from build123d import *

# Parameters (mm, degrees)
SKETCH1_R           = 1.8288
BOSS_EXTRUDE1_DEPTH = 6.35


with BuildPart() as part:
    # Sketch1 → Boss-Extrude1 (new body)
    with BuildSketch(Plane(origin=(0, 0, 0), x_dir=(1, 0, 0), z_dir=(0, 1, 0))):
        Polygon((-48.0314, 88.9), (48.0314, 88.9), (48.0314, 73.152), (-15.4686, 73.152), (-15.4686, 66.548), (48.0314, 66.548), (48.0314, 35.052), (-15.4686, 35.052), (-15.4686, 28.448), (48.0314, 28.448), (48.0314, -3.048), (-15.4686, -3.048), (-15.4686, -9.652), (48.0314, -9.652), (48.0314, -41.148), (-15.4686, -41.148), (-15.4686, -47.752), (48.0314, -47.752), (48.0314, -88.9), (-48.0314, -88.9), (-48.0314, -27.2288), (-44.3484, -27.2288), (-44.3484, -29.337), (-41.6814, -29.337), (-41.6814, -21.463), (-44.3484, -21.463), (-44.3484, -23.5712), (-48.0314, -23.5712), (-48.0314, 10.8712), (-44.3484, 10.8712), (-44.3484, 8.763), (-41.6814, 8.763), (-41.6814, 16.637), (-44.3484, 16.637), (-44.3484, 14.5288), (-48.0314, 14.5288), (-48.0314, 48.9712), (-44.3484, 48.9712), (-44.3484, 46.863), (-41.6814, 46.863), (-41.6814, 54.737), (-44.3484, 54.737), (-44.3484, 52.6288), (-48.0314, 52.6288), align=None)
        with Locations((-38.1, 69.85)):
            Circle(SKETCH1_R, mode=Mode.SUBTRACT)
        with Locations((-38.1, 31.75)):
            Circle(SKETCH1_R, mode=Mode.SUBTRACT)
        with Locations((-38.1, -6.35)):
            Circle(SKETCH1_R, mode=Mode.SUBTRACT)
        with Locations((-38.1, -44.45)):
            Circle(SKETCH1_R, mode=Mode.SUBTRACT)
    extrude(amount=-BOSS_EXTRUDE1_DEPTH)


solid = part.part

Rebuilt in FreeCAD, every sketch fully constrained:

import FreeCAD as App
import Part
import Sketcher
Q = App.Units.Quantity

doc = App.newDocument("Part")
body = doc.addObject("PartDesign::Body", "Body")

# Sketch on XZ plane
sketch1 = body.newObject("Sketcher::SketchObject", "Sketch")
sketch1.AttachmentSupport = (doc.getObject("XZ_Plane"), [""])
sketch1.MapMode = "FlatFace"
sketch1.addGeometry(Part.LineSegment(App.Vector(48, -88.9, 0), App.Vector(-48, -88.9, 0)), False)
sketch1.addGeometry(Part.LineSegment(App.Vector(-48, -88.9, 0), App.Vector(-48, -52.6, 0)), False)
sketch1.addGeometry(Part.LineSegment(App.Vector(-48, -52.6, 0), App.Vector(-44.3, -52.6, 0)), False)
sketch1.addGeometry(Part.LineSegment(App.Vector(-44.3, -52.6, 0), App.Vector(-44.3, -54.7, 0)), False)
sketch1.addGeometry(Part.LineSegment(App.Vector(-44.3, -54.7, 0), App.Vector(-41.7, -54.7, 0)), False)
sketch1.addGeometry(Part.LineSegment(App.Vector(-41.7, -54.7, 0), App.Vector(-41.7, -46.9, 0)), False)
sketch1.addGeometry(Part.LineSegment(App.Vector(-41.7, -46.9, 0), App.Vector(-44.3, -46.9, 0)), False)
sketch1.addGeometry(Part.LineSegment(App.Vector(-44.3, -46.9, 0), App.Vector(-44.3, -49, 0)), False)
sketch1.addGeometry(Part.LineSegment(App.Vector(-44.3, -49, 0), App.Vector(-48, -49, 0)), False)
sketch1.addGeometry(Part.LineSegment(App.Vector(-48, -49, 0), App.Vector(-48, -14.5, 0)), False)
sketch1.addGeometry(Part.LineSegment(App.Vector(-48, -14.5, 0), App.Vector(-44.3, -14.5, 0)), False)
sketch1.addGeometry(Part.LineSegment(App.Vector(-44.3, -14.5, 0), App.Vector(-44.3, -16.6, 0)), False)
sketch1.addGeometry(Part.LineSegment(App.Vector(-44.3, -16.6, 0), App.Vector(-41.7, -16.6, 0)), False)
sketch1.addGeometry(Part.LineSegment(App.Vector(-41.7, -16.6, 0), App.Vector(-41.7, -8.8, 0)), False)
sketch1.addGeometry(Part.LineSegment(App.Vector(-41.7, -8.8, 0), App.Vector(-44.3, -8.8, 0)), False)
sketch1.addGeometry(Part.LineSegment(App.Vector(-44.3, -8.8, 0), App.Vector(-44.3, -10.9, 0)), False)
sketch1.addGeometry(Part.LineSegment(App.Vector(-44.3, -10.9, 0), App.Vector(-48, -10.9, 0)), False)
sketch1.addGeometry(Part.LineSegment(App.Vector(-48, -10.9, 0), App.Vector(-48, 23.6, 0)), False)
sketch1.addGeometry(Part.LineSegment(App.Vector(-48, 23.6, 0), App.Vector(-44.3, 23.6, 0)), False)
sketch1.addGeometry(Part.LineSegment(App.Vector(-44.3, 23.6, 0), App.Vector(-44.3, 21.5, 0)), False)
sketch1.addGeometry(Part.LineSegment(App.Vector(-44.3, 21.5, 0), App.Vector(-41.7, 21.5, 0)), False)
sketch1.addGeometry(Part.LineSegment(App.Vector(-41.7, 21.5, 0), App.Vector(-41.7, 29.3, 0)), False)
sketch1.addGeometry(Part.LineSegment(App.Vector(-41.7, 29.3, 0), App.Vector(-44.3, 29.3, 0)), False)
sketch1.addGeometry(Part.LineSegment(App.Vector(-44.3, 29.3, 0), App.Vector(-44.3, 27.2, 0)), False)
sketch1.addGeometry(Part.LineSegment(App.Vector(-44.3, 27.2, 0), App.Vector(-48, 27.2, 0)), False)
sketch1.addGeometry(Part.LineSegment(App.Vector(-48, 27.2, 0), App.Vector(-48, 88.9, 0)), False)
sketch1.addGeometry(Part.LineSegment(App.Vector(-48, 88.9, 0), App.Vector(48, 88.9, 0)), False)
sketch1.addGeometry(Part.LineSegment(App.Vector(48, 88.9, 0), App.Vector(48, 47.8, 0)), False)
sketch1.addGeometry(Part.LineSegment(App.Vector(48, 47.8, 0), App.Vector(-15.5, 47.8, 0)), False)
sketch1.addGeometry(Part.LineSegment(App.Vector(-15.5, 47.8, 0), App.Vector(-15.5, 41.1, 0)), False)
sketch1.addGeometry(Part.LineSegment(App.Vector(-15.5, 41.1, 0), App.Vector(48, 41.1, 0)), False)
sketch1.addGeometry(Part.LineSegment(App.Vector(48, 41.1, 0), App.Vector(48, 9.7, 0)), False)
sketch1.addGeometry(Part.LineSegment(App.Vector(48, 9.7, 0), App.Vector(-15.5, 9.7, 0)), False)
sketch1.addGeometry(Part.LineSegment(App.Vector(-15.5, 9.7, 0), App.Vector(-15.5, 3, 0)), False)
sketch1.addGeometry(Part.LineSegment(App.Vector(-15.5, 3, 0), App.Vector(48, 3, 0)), False)
sketch1.addGeometry(Part.LineSegment(App.Vector(48, 3, 0), App.Vector(48, -28.4, 0)), False)
sketch1.addGeometry(Part.LineSegment(App.Vector(48, -28.4, 0), App.Vector(-15.5, -28.4, 0)), False)
sketch1.addGeometry(Part.LineSegment(App.Vector(-15.5, -28.4, 0), App.Vector(-15.5, -35.1, 0)), False)
sketch1.addGeometry(Part.LineSegment(App.Vector(-15.5, -35.1, 0), App.Vector(48, -35.1, 0)), False)
sketch1.addGeometry(Part.LineSegment(App.Vector(48, -35.1, 0), App.Vector(48, -66.5, 0)), False)
sketch1.addGeometry(Part.LineSegment(App.Vector(48, -66.5, 0), App.Vector(-15.5, -66.5, 0)), False)
sketch1.addGeometry(Part.LineSegment(App.Vector(-15.5, -66.5, 0), App.Vector(-15.5, -73.2, 0)), False)
sketch1.addGeometry(Part.LineSegment(App.Vector(-15.5, -73.2, 0), App.Vector(48, -73.2, 0)), False)
sketch1.addGeometry(Part.LineSegment(App.Vector(48, -73.2, 0), App.Vector(48, -88.9, 0)), False)
sketch1.addGeometry(Part.Circle(App.Vector(-38.1, 44.5, 0), App.Vector(0, 0, 1), 1.8), False)
sketch1.addGeometry(Part.Circle(App.Vector(-38.1, 6.3, 0), App.Vector(0, 0, 1), 1.8), False)
sketch1.addGeometry(Part.Circle(App.Vector(-38.1, -31.8, 0), App.Vector(0, 0, 1), 1.8), False)
sketch1.addGeometry(Part.Circle(App.Vector(-38.1, -69.8, 0), App.Vector(0, 0, 1), 1.8), False)
sketch1.addConstraint(Sketcher.Constraint("Coincident", 0, 2, 1, 1))
sketch1.addConstraint(Sketcher.Constraint("Coincident", 1, 2, 2, 1))
sketch1.addConstraint(Sketcher.Constraint("Coincident", 2, 2, 3, 1))
sketch1.addConstraint(Sketcher.Constraint("Coincident", 3, 2, 4, 1))
sketch1.addConstraint(Sketcher.Constraint("Coincident", 4, 2, 5, 1))
sketch1.addConstraint(Sketcher.Constraint("Coincident", 5, 2, 6, 1))
sketch1.addConstraint(Sketcher.Constraint("Coincident", 6, 2, 7, 1))
sketch1.addConstraint(Sketcher.Constraint("Coincident", 7, 2, 8, 1))
sketch1.addConstraint(Sketcher.Constraint("Coincident", 8, 2, 9, 1))
sketch1.addConstraint(Sketcher.Constraint("Coincident", 9, 2, 10, 1))
sketch1.addConstraint(Sketcher.Constraint("Coincident", 10, 2, 11, 1))
sketch1.addConstraint(Sketcher.Constraint("Coincident", 11, 2, 12, 1))
sketch1.addConstraint(Sketcher.Constraint("Coincident", 12, 2, 13, 1))
sketch1.addConstraint(Sketcher.Constraint("Coincident", 13, 2, 14, 1))
sketch1.addConstraint(Sketcher.Constraint("Coincident", 14, 2, 15, 1))
sketch1.addConstraint(Sketcher.Constraint("Coincident", 15, 2, 16, 1))
sketch1.addConstraint(Sketcher.Constraint("Coincident", 16, 2, 17, 1))
sketch1.addConstraint(Sketcher.Constraint("Coincident", 17, 2, 18, 1))
sketch1.addConstraint(Sketcher.Constraint("Coincident", 18, 2, 19, 1))
sketch1.addConstraint(Sketcher.Constraint("Coincident", 19, 2, 20, 1))
sketch1.addConstraint(Sketcher.Constraint("Coincident", 20, 2, 21, 1))
sketch1.addConstraint(Sketcher.Constraint("Coincident", 21, 2, 22, 1))
sketch1.addConstraint(Sketcher.Constraint("Coincident", 22, 2, 23, 1))
sketch1.addConstraint(Sketcher.Constraint("Coincident", 23, 2, 24, 1))
sketch1.addConstraint(Sketcher.Constraint("Coincident", 24, 2, 25, 1))
sketch1.addConstraint(Sketcher.Constraint("Coincident", 25, 2, 26, 1))
sketch1.addConstraint(Sketcher.Constraint("Coincident", 26, 2, 27, 1))
sketch1.addConstraint(Sketcher.Constraint("Coincident", 27, 2, 28, 1))
sketch1.addConstraint(Sketcher.Constraint("Coincident", 28, 2, 29, 1))
sketch1.addConstraint(Sketcher.Constraint("Coincident", 29, 2, 30, 1))
sketch1.addConstraint(Sketcher.Constraint("Coincident", 30, 2, 31, 1))
sketch1.addConstraint(Sketcher.Constraint("Coincident", 31, 2, 32, 1))
sketch1.addConstraint(Sketcher.Constraint("Coincident", 32, 2, 33, 1))
sketch1.addConstraint(Sketcher.Constraint("Coincident", 33, 2, 34, 1))
sketch1.addConstraint(Sketcher.Constraint("Coincident", 34, 2, 35, 1))
sketch1.addConstraint(Sketcher.Constraint("Coincident", 35, 2, 36, 1))
sketch1.addConstraint(Sketcher.Constraint("Coincident", 36, 2, 37, 1))
sketch1.addConstraint(Sketcher.Constraint("Coincident", 37, 2, 38, 1))
sketch1.addConstraint(Sketcher.Constraint("Coincident", 38, 2, 39, 1))
sketch1.addConstraint(Sketcher.Constraint("Coincident", 39, 2, 40, 1))
sketch1.addConstraint(Sketcher.Constraint("Coincident", 40, 2, 41, 1))
sketch1.addConstraint(Sketcher.Constraint("Coincident", 41, 2, 42, 1))
sketch1.addConstraint(Sketcher.Constraint("Coincident", 42, 2, 43, 1))
sketch1.addConstraint(Sketcher.Constraint("Coincident", 43, 2, 0, 1))
sketch1.addConstraint(Sketcher.Constraint("Horizontal", 0))
sketch1.addConstraint(Sketcher.Constraint("Vertical", 1))
sketch1.addConstraint(Sketcher.Constraint("Horizontal", 2))
sketch1.addConstraint(Sketcher.Constraint("Vertical", 3))
sketch1.addConstraint(Sketcher.Constraint("Horizontal", 4))
sketch1.addConstraint(Sketcher.Constraint("Vertical", 5))
sketch1.addConstraint(Sketcher.Constraint("Horizontal", 6))
sketch1.addConstraint(Sketcher.Constraint("Vertical", 7))
sketch1.addConstraint(Sketcher.Constraint("Horizontal", 8))
sketch1.addConstraint(Sketcher.Constraint("Vertical", 9))
sketch1.addConstraint(Sketcher.Constraint("Horizontal", 10))
sketch1.addConstraint(Sketcher.Constraint("Vertical", 11))
sketch1.addConstraint(Sketcher.Constraint("Horizontal", 12))
sketch1.addConstraint(Sketcher.Constraint("Vertical", 13))
sketch1.addConstraint(Sketcher.Constraint("Horizontal", 14))
sketch1.addConstraint(Sketcher.Constraint("Vertical", 15))
sketch1.addConstraint(Sketcher.Constraint("Horizontal", 16))
sketch1.addConstraint(Sketcher.Constraint("Vertical", 17))
sketch1.addConstraint(Sketcher.Constraint("Horizontal", 18))
sketch1.addConstraint(Sketcher.Constraint("Vertical", 19))
sketch1.addConstraint(Sketcher.Constraint("Horizontal", 20))
sketch1.addConstraint(Sketcher.Constraint("Vertical", 21))
sketch1.addConstraint(Sketcher.Constraint("Horizontal", 22))
sketch1.addConstraint(Sketcher.Constraint("Vertical", 23))
sketch1.addConstraint(Sketcher.Constraint("Horizontal", 24))
sketch1.addConstraint(Sketcher.Constraint("Vertical", 25))
sketch1.addConstraint(Sketcher.Constraint("Horizontal", 26))
sketch1.addConstraint(Sketcher.Constraint("Vertical", 27))
sketch1.addConstraint(Sketcher.Constraint("Horizontal", 28))
sketch1.addConstraint(Sketcher.Constraint("Vertical", 29))
sketch1.addConstraint(Sketcher.Constraint("Horizontal", 30))
sketch1.addConstraint(Sketcher.Constraint("Vertical", 31))
sketch1.addConstraint(Sketcher.Constraint("Horizontal", 32))
sketch1.addConstraint(Sketcher.Constraint("Vertical", 33))
sketch1.addConstraint(Sketcher.Constraint("Horizontal", 34))
sketch1.addConstraint(Sketcher.Constraint("Vertical", 35))
sketch1.addConstraint(Sketcher.Constraint("Horizontal", 36))
sketch1.addConstraint(Sketcher.Constraint("Vertical", 37))
sketch1.addConstraint(Sketcher.Constraint("Horizontal", 38))
sketch1.addConstraint(Sketcher.Constraint("Vertical", 39))
sketch1.addConstraint(Sketcher.Constraint("Horizontal", 40))
sketch1.addConstraint(Sketcher.Constraint("Vertical", 41))
sketch1.addConstraint(Sketcher.Constraint("Horizontal", 42))
sketch1.addConstraint(Sketcher.Constraint("Vertical", 43))
sketch1.addConstraint(Sketcher.Constraint("Equal", 44, 45))
sketch1.addConstraint(Sketcher.Constraint("Equal", 45, 46))
sketch1.addConstraint(Sketcher.Constraint("Equal", 46, 47))
sketch1.addConstraint(Sketcher.Constraint("Symmetric", 0, 2, 26, 2, -1, 1))
sketch1.addConstraint(Sketcher.Constraint("Vertical", 44, 3, 45, 3))
sketch1.addConstraint(Sketcher.Constraint("Vertical", 45, 3, 46, 3))
sketch1.addConstraint(Sketcher.Constraint("Vertical", 46, 3, 47, 3))
sketch1.addConstraint(Sketcher.Constraint("Vertical", 3, 2, 6, 2))
sketch1.addConstraint(Sketcher.Constraint("Vertical", 1, 2, 8, 2))
sketch1.addConstraint(Sketcher.Constraint("Vertical", 7, 2, 10, 2))
sketch1.addConstraint(Sketcher.Constraint("Vertical", 5, 2, 12, 2))
sketch1.addConstraint(Sketcher.Constraint("Vertical", 11, 2, 14, 2))
sketch1.addConstraint(Sketcher.Constraint("Vertical", 9, 2, 16, 2))
sketch1.addConstraint(Sketcher.Constraint("Vertical", 15, 2, 18, 2))
sketch1.addConstraint(Sketcher.Constraint("Vertical", 13, 2, 20, 2))
sketch1.addConstraint(Sketcher.Constraint("Vertical", 19, 2, 22, 2))
sketch1.addConstraint(Sketcher.Constraint("Vertical", 17, 2, 24, 2))
sketch1.addConstraint(Sketcher.Constraint("Vertical", 27, 2, 30, 2))
sketch1.addConstraint(Sketcher.Constraint("Vertical", 29, 2, 32, 2))
sketch1.addConstraint(Sketcher.Constraint("Vertical", 31, 2, 34, 2))
sketch1.addConstraint(Sketcher.Constraint("Vertical", 33, 2, 36, 2))
sketch1.addConstraint(Sketcher.Constraint("Vertical", 35, 2, 38, 2))
sketch1.addConstraint(Sketcher.Constraint("Vertical", 37, 2, 40, 2))
sketch1.addConstraint(Sketcher.Constraint("Vertical", 39, 2, 42, 2))
sketch1.addConstraint(Sketcher.Constraint("Equal", 3, 7))
sketch1.addConstraint(Sketcher.Constraint("Equal", 7, 11))
sketch1.addConstraint(Sketcher.Constraint("Equal", 5, 13))
sketch1.addConstraint(Sketcher.Constraint("Equal", 11, 15))
sketch1.addConstraint(Sketcher.Constraint("Equal", 9, 17))
sketch1.addConstraint(Sketcher.Constraint("Equal", 15, 19))
sketch1.addConstraint(Sketcher.Constraint("Equal", 13, 21))
sketch1.addConstraint(Sketcher.Constraint("Equal", 19, 23))
sketch1.addConstraint(Sketcher.Constraint("Equal", 29, 33))
sketch1.addConstraint(Sketcher.Constraint("Equal", 31, 35))
sketch1.addConstraint(Sketcher.Constraint("Equal", 33, 37))
sketch1.addConstraint(Sketcher.Constraint("Equal", 35, 39))
sketch1.addConstraint(Sketcher.Constraint("Equal", 37, 41))
sketch1.addConstraint(Sketcher.Constraint("Diameter", 44, Q("0.144 in")))
sketch1.addConstraint(Sketcher.Constraint("DistanceX", 28, 2, 28, 1, Q("2.5 in")))
sketch1.addConstraint(Sketcher.Constraint("DistanceY", 46, 3, 44, 3, Q("3 in")))
sketch1.addConstraint(Sketcher.Constraint("DistanceY", 47, 3, 45, 3, Q("3 in")))
sketch1.addConstraint(Sketcher.Constraint("DistanceY", 5, 1, 5, 2, Q("0.31 in")))
sketch1.addConstraint(Sketcher.Constraint("DistanceY", 27, 2, 27, 1, Q("1.62 in")))
sketch1.addConstraint(Sketcher.Constraint("DistanceY", 29, 2, 29, 1, Q("0.26 in")))
sketch1.addConstraint(Sketcher.Constraint("DistanceY", 31, 2, 31, 1, Q("1.24 in")))
sketch1.addConstraint(Sketcher.Constraint("DistanceY", 43, 2, 43, 1, Q("0.62 in")))
sketch1.addConstraint(Sketcher.Constraint("DistanceX", 44, 3, -1, 1, Q("1.5 in")))
sketch1.addConstraint(Sketcher.Constraint("DistanceY", 45, 3, 44, 3, Q("1.5 in")))
sketch1.addConstraint(Sketcher.Constraint("DistanceX", 0, 2, 0, 1, Q("3.782 in")))
sketch1.addConstraint(Sketcher.Constraint("DistanceX", 2, 1, 2, 2, Q("0.145 in")))
sketch1.addConstraint(Sketcher.Constraint("DistanceX", 4, 1, 4, 2, Q("0.105 in")))
sketch1.addConstraint(Sketcher.Constraint("DistanceY", 1, 1, 1, 2, Q("1.428 in")))
sketch1.addConstraint(Sketcher.Constraint("DistanceY", 3, 2, 3, 1, Q("0.083 in")))
sketch1.addConstraint(Sketcher.Constraint("DistanceY", 9, 1, 9, 2, Q("1.356 in")))
sketch1.addConstraint(Sketcher.Constraint("DistanceY", -1, 1, 44, 3, Q("1.75 in")))
pad1 = body.newObject("PartDesign::Pad", "Pad")
pad1.Profile = sketch1
pad1.Length = Q("0.25 in")

doc.recompute()
